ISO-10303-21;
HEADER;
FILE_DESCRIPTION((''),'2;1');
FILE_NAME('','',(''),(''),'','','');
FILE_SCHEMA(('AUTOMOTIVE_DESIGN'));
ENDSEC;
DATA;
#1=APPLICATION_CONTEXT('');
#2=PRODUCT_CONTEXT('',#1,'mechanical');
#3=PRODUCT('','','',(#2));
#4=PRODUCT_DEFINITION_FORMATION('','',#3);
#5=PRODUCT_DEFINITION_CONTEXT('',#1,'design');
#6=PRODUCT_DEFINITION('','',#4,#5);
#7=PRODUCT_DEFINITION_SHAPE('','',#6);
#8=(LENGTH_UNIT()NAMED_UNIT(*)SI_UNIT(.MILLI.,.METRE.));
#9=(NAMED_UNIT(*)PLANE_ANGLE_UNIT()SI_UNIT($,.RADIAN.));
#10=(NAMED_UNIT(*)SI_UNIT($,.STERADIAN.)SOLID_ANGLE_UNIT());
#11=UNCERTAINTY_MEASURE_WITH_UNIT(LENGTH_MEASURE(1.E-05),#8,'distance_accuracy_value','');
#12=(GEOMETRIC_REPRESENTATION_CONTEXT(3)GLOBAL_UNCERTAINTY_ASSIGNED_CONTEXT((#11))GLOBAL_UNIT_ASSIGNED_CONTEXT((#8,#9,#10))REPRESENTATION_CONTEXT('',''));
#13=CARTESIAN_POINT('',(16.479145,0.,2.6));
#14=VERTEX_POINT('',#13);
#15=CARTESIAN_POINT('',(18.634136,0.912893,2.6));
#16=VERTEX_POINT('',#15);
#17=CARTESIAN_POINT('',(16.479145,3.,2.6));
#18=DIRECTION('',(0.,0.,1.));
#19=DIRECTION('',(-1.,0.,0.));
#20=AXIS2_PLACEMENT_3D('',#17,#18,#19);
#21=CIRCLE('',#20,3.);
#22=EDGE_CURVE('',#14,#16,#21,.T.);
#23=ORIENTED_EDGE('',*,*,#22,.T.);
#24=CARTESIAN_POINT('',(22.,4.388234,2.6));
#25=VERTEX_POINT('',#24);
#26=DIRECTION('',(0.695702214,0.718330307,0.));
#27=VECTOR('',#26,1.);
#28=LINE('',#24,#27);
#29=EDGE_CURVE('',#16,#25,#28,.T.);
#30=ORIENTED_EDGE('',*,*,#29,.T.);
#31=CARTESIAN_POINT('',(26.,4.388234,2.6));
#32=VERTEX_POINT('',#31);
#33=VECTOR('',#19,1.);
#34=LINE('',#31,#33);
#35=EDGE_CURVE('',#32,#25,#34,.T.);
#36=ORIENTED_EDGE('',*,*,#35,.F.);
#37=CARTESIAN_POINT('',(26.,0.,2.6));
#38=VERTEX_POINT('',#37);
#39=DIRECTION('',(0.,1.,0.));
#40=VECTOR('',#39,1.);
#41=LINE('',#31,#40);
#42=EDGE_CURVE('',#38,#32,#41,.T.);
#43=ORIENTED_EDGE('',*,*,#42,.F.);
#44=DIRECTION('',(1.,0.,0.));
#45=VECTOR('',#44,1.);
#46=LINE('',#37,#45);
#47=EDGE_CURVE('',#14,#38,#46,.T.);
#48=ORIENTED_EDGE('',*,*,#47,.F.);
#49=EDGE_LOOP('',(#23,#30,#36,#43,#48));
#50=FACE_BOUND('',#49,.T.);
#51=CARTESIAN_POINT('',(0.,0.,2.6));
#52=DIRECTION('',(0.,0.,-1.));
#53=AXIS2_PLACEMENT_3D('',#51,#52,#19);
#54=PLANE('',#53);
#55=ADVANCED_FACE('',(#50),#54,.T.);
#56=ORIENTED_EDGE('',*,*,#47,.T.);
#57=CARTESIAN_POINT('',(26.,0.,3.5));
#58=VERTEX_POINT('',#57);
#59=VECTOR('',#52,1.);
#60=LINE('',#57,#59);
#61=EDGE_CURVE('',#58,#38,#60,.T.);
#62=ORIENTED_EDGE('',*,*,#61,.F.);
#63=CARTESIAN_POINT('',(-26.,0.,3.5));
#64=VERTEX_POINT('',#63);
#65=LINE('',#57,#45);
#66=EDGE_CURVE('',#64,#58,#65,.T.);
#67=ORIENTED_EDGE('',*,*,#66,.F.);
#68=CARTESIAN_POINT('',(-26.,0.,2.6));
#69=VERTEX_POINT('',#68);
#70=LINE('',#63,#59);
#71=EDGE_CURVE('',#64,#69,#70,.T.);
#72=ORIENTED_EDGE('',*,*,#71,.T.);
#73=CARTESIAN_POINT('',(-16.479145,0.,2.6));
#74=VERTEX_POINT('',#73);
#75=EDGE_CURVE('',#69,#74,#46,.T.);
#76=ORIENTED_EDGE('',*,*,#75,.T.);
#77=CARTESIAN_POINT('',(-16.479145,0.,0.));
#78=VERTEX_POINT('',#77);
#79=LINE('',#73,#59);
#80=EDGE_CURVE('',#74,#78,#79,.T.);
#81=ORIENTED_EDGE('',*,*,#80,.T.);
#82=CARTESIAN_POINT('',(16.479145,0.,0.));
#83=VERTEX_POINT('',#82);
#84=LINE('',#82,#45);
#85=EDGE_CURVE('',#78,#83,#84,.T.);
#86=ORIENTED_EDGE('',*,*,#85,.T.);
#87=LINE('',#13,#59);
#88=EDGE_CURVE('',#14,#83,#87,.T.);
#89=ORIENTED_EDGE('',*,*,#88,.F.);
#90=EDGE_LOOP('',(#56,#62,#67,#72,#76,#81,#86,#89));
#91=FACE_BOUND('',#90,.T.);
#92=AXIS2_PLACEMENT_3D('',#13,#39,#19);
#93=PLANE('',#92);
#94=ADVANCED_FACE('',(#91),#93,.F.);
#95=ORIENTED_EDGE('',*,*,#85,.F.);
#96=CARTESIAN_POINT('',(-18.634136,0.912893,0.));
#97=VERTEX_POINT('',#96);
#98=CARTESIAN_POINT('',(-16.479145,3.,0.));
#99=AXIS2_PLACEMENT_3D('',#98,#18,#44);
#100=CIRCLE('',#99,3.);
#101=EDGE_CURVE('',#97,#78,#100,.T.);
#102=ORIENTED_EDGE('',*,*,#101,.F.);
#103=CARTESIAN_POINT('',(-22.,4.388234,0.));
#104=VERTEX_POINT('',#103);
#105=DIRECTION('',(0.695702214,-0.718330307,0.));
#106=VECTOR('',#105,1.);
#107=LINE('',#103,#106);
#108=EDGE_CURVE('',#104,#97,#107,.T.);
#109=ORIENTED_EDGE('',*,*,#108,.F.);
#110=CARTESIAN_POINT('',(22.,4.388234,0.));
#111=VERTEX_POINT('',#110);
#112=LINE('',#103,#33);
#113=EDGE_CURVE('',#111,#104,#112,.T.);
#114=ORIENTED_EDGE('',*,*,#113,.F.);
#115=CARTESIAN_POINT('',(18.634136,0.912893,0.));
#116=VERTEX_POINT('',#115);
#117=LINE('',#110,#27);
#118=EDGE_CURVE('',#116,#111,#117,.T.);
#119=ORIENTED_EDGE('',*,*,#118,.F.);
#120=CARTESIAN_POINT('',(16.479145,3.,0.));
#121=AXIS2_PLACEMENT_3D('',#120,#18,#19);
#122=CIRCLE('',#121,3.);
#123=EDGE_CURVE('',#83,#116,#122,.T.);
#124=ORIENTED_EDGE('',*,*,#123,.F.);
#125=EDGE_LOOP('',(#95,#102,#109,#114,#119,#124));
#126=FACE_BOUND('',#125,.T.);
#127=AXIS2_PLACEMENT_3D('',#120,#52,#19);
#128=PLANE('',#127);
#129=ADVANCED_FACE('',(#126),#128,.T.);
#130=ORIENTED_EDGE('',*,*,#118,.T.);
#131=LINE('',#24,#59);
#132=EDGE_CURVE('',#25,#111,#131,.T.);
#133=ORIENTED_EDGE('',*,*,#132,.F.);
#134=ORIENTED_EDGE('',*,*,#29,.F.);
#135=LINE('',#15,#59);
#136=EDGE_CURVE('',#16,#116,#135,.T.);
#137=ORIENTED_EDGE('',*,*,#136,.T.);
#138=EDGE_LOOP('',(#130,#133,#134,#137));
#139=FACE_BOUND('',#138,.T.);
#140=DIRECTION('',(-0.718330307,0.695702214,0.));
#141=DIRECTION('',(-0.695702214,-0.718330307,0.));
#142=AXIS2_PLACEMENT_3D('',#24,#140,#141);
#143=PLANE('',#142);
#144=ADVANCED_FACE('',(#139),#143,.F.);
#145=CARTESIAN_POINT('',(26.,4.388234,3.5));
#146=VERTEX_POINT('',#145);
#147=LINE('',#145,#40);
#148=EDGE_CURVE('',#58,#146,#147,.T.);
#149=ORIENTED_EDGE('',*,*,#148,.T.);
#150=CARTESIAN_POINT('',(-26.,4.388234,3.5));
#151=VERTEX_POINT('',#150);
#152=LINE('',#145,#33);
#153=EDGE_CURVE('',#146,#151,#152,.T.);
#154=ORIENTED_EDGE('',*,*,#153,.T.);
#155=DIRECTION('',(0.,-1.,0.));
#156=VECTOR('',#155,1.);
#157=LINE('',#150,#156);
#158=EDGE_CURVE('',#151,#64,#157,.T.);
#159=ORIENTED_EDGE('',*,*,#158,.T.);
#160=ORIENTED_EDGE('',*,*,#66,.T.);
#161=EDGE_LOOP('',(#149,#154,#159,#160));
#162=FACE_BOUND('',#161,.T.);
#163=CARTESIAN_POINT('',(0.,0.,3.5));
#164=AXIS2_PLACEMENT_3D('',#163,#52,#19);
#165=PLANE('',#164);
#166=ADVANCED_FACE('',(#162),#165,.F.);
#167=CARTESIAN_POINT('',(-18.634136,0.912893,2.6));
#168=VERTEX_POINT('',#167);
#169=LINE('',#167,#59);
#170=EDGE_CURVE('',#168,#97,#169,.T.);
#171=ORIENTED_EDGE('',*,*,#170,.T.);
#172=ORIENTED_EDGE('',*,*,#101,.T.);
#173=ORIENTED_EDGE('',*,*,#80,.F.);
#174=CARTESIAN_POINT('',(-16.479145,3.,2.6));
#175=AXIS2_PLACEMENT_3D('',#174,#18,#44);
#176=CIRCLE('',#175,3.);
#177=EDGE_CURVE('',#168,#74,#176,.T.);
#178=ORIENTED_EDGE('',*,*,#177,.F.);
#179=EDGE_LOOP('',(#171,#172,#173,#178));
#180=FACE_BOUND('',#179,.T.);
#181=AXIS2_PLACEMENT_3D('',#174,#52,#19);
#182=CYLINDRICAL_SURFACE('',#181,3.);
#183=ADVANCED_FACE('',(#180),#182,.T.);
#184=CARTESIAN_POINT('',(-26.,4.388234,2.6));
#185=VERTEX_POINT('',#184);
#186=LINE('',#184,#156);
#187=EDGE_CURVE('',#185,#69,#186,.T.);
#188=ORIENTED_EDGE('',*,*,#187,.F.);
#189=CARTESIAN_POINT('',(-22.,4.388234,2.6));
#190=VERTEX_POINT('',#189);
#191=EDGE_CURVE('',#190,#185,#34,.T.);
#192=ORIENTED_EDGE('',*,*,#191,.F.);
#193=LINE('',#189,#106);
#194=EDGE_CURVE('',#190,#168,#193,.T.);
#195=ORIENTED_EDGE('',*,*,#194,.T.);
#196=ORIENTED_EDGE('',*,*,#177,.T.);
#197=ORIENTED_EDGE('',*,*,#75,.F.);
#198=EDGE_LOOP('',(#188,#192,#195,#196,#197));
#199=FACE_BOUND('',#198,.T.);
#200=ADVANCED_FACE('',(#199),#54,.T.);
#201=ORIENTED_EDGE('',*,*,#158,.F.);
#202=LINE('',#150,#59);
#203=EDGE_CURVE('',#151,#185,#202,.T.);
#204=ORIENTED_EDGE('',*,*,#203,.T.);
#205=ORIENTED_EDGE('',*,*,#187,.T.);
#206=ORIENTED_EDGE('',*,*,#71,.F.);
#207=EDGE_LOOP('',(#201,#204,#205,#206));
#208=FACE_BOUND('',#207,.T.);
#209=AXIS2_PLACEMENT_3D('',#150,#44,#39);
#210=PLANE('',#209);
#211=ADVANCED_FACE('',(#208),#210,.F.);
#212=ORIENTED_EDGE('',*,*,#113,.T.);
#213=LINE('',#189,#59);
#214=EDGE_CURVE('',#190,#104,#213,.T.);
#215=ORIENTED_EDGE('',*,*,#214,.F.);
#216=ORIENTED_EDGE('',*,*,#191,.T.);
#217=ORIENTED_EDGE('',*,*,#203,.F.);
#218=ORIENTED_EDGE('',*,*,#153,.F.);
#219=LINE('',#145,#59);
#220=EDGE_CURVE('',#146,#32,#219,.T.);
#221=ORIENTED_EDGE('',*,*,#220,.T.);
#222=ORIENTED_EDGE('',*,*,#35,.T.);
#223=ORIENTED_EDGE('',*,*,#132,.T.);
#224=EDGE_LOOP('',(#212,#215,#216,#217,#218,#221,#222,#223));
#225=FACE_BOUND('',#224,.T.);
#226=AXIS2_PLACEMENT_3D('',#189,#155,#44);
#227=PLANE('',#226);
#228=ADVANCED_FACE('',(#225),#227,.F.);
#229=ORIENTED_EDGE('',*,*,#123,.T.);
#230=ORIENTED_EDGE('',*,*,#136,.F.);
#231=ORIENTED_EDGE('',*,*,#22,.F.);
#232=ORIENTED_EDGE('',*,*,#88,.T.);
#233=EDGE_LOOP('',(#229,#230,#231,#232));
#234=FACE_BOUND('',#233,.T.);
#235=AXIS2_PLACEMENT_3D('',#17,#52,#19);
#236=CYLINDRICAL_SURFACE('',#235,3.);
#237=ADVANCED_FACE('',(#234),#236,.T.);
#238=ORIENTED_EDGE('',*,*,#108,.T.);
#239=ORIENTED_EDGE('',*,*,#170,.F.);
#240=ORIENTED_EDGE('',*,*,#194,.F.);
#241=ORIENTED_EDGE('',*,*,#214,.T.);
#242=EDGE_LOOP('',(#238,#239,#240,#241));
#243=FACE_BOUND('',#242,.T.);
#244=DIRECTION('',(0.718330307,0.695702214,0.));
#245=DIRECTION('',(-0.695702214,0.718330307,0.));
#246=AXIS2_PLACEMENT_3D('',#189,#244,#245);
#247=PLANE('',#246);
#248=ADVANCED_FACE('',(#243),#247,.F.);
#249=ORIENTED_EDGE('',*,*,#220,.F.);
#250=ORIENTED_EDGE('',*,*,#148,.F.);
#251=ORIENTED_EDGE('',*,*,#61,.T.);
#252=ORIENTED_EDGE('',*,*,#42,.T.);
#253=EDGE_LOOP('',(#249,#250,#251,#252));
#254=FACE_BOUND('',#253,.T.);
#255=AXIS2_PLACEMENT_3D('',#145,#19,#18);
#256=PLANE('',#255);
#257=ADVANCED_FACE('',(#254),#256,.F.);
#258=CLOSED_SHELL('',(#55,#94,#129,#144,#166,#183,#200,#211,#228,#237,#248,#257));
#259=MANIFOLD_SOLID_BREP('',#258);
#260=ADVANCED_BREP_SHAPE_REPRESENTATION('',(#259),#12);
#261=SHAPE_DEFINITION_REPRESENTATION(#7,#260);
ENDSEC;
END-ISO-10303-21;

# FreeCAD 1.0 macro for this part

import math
import FreeCAD as App
import Part
import Sketcher

V = App.Vector
Q = App.Units.Quantity


def add_polygon(sketch, points):
    """Adds a closed chain of lines whose ends are joined by coincident constraints."""
    first, n = sketch.GeometryCount, len(points)
    for a, b in zip(points, points[1:] + points[:1]):
        sketch.addGeometry(Part.LineSegment(App.Vector(*a, 0), App.Vector(*b, 0)), False)
    for i in range(n):
        sketch.addConstraint(Sketcher.Constraint("Coincident", first + i, 2, first + (i + 1) % n, 1))

doc = App.newDocument("Part")
body = doc.addObject("PartDesign::Body", "Body")

# Sketch on XY plane
sketch1 = body.newObject("Sketcher::SketchObject", "Sketch")
sketch1.AttachmentSupport = (doc.getObject("XY_Plane"), [""])
sketch1.MapMode = "FlatFace"
sketch1.addGeometry(Part.LineSegment(V(18.6, 0.9, 0), V(22, 4.4, 0)), False)
sketch1.addGeometry(Part.LineSegment(V(22, 4.4, 0), V(-22, 4.4, 0)), False)
sketch1.addGeometry(Part.LineSegment(V(-22, 4.4, 0), V(-18.6, 0.9, 0)), False)
sketch1.addGeometry(Part.ArcOfCircle(Part.Circle(V(-16.5, 3, 0), V(0, 0, 1), 3), math.radians(-136), math.radians(-90)), False)
sketch1.addGeometry(Part.LineSegment(V(-16.5, 0, 0), V(16.5, 0, 0)), False)
sketch1.addGeometry(Part.ArcOfCircle(Part.Circle(V(16.5, 3, 0), V(0, 0, 1), 3), math.radians(-90), math.radians(-44)), False)
sketch1.addConstraint(Sketcher.Constraint("Coincident", 0, 2, 1, 1))
sketch1.addConstraint(Sketcher.Constraint("Coincident", 1, 2, 2, 1))
sketch1.addConstraint(Sketcher.Constraint("Tangent", 2, 2, 3, 1))
sketch1.addConstraint(Sketcher.Constraint("Tangent", 3, 2, 4, 1))
sketch1.addConstraint(Sketcher.Constraint("Tangent", 4, 2, 5, 1))
sketch1.addConstraint(Sketcher.Constraint("Tangent", 5, 2, 0, 1))
sketch1.addConstraint(Sketcher.Constraint("Horizontal", 1))
sketch1.addConstraint(Sketcher.Constraint("Horizontal", 4))
sketch1.addConstraint(Sketcher.Constraint("Equal", 3, 5))
sketch1.addConstraint(Sketcher.Constraint("Symmetric", 3, 2, 4, 2, -1, 1))
sketch1.addConstraint(Sketcher.Constraint("Horizontal", 2, 2, 5, 2))
sketch1.addConstraint(Sketcher.Constraint("Radius", 3, Q("3 mm")))
sketch1.addConstraint(Sketcher.Constraint("DistanceX", 1, 2, 1, 1, Q("44 mm")))
sketch1.addConstraint(Sketcher.Constraint("DistanceX", 4, 1, 4, 2, Q("32.958291 mm")))
sketch1.addConstraint(Sketcher.Constraint("Distance", 0, Q("4.838081 mm")))
pad1 = body.newObject("PartDesign::Pad", "Pad")
pad1.Profile = sketch1
pad1.Length = 2.6

# Sketch on XY plane
sketch2 = body.newObject("Sketcher::SketchObject", "Sketch001")
sketch2.AttachmentSupport = (doc.getObject("XY_Plane"), [""])
sketch2.MapMode = "FlatFace"
sketch2.AttachmentOffset = App.Placement(V(0, 0, 2.6), App.Rotation())
add_polygon(sketch2, [(-26, 4.4), (-26, 0), (26, 0), (26, 4.4)])  # lines 0-3
sketch2.addConstraint(Sketcher.Constraint("Vertical", 0))
sketch2.addConstraint(Sketcher.Constraint("Horizontal", 1))
sketch2.addConstraint(Sketcher.Constraint("Vertical", 2))
sketch2.addConstraint(Sketcher.Constraint("Horizontal", 3))
sketch2.addConstraint(Sketcher.Constraint("Symmetric", 0, 2, 1, 2, -1, 1))
sketch2.addConstraint(Sketcher.Constraint("DistanceX", 1, 1, 1, 2, Q("52 mm")))
sketch2.addConstraint(Sketcher.Constraint("DistanceY", 0, 2, 0, 1, Q("4.388234 mm")))
pad2 = body.newObject("PartDesign::Pad", "Pad001")
pad2.Profile = sketch2
pad2.Length = 0.9

doc.recompute()
